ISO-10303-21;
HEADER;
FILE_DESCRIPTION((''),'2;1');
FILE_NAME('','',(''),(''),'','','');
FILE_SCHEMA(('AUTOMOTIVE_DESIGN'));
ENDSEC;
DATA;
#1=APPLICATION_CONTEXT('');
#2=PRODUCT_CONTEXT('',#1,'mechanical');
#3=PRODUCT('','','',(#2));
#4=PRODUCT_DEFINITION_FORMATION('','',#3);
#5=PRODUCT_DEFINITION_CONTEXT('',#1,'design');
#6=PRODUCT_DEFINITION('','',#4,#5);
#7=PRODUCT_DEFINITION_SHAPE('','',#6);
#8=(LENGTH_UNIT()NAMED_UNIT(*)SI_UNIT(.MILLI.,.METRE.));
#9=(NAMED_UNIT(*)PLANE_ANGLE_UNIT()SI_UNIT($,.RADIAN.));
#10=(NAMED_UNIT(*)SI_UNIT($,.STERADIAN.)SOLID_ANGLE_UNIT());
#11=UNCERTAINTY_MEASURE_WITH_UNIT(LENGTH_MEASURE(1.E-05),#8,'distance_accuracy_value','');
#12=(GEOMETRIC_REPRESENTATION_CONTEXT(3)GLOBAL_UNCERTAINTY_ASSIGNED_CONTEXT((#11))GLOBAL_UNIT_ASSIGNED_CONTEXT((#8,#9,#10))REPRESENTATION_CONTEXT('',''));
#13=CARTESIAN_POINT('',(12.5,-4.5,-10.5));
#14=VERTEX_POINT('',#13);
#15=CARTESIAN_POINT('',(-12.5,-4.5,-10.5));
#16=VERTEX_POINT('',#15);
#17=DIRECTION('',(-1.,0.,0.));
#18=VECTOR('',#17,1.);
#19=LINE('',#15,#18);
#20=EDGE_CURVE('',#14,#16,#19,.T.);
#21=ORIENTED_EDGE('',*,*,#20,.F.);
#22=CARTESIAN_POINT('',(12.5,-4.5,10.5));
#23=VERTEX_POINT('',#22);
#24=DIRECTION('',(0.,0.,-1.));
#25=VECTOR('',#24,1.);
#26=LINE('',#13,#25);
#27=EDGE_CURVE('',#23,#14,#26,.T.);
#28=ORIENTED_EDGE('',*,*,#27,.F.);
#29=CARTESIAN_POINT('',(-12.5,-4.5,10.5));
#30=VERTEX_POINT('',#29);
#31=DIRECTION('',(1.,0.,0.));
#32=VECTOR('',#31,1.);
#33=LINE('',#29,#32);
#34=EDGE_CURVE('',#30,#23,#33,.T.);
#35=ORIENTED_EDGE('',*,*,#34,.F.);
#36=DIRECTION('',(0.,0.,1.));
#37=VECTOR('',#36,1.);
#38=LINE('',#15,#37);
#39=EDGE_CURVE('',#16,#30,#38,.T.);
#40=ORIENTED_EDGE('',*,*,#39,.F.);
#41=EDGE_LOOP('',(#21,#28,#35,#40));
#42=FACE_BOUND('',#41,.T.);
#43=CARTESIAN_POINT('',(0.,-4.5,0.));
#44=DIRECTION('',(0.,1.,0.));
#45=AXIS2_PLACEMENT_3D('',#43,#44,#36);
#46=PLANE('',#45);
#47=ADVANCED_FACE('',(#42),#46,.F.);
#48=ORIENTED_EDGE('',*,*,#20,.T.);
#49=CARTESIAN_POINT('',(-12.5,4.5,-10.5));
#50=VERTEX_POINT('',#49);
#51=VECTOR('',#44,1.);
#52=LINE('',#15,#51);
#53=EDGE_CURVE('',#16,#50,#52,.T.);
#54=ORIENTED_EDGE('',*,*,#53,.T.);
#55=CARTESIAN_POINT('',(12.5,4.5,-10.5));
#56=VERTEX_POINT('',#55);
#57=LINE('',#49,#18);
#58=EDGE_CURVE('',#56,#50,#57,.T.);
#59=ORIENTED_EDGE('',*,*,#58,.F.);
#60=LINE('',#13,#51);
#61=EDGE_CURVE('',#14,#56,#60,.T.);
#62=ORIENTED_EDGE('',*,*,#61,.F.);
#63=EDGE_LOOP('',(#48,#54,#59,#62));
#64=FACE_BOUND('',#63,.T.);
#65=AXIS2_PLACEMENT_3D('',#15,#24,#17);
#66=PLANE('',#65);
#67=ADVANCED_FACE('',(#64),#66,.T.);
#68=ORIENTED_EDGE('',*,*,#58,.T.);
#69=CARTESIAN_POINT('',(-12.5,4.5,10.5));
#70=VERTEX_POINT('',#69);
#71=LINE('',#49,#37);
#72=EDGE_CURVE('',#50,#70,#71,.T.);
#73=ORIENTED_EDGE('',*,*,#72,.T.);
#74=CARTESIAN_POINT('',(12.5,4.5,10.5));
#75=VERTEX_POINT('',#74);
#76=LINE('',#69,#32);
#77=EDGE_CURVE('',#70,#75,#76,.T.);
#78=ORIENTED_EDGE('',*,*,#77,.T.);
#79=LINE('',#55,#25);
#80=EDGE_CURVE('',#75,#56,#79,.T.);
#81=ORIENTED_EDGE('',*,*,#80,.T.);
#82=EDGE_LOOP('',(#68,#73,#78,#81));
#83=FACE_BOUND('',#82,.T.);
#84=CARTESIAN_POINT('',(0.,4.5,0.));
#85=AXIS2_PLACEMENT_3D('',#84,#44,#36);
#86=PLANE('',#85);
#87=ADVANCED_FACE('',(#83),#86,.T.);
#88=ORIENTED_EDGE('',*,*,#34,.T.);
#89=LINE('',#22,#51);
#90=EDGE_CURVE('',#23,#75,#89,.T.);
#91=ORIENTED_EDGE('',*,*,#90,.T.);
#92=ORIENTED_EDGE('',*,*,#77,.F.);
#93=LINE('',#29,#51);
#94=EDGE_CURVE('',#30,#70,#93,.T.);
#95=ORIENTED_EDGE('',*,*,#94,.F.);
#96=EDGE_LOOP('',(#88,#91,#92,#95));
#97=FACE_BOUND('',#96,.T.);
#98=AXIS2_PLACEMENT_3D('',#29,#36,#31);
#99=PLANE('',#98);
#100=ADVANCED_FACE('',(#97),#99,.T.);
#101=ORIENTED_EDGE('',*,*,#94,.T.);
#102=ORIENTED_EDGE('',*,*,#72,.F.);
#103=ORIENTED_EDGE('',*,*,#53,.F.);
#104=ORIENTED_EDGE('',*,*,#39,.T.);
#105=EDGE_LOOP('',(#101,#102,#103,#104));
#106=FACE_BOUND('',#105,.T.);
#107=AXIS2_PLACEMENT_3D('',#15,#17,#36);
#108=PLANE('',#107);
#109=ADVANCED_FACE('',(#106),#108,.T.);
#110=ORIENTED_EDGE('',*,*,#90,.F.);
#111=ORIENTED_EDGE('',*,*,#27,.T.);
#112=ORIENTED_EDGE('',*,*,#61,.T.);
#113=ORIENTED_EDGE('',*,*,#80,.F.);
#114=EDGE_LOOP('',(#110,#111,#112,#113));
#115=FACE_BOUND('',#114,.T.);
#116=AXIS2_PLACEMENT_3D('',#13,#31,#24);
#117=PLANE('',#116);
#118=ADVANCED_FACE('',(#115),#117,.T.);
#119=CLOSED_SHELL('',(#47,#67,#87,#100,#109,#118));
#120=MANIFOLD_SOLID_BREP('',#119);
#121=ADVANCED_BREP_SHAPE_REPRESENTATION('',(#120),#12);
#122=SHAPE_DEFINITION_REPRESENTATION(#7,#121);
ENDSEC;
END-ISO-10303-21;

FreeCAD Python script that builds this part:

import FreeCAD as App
import Part
import Sketcher
from FreeCAD import Vector


def add_polygon(sketch, points):
    """Adds a closed chain of lines whose ends are joined by coincident constraints."""
    first, n = sketch.GeometryCount, len(points)
    for a, b in zip(points, points[1:] + points[:1]):
        sketch.addGeometry(Part.LineSegment(App.Vector(*a, 0), App.Vector(*b, 0)), False)
    for i in range(n):
        sketch.addConstraint(Sketcher.Constraint("Coincident", first + i, 2, first + (i + 1) % n, 1))

doc = App.newDocument("Part")
body = doc.addObject("PartDesign::Body", "Body")

# Sketch on XZ plane
sketch1 = body.newObject("Sketcher::SketchObject", "Sketch")
sketch1.AttachmentSupport = (doc.getObject("XZ_Plane"), [""])
sketch1.MapMode = "FlatFace"
add_polygon(sketch1, [(-12, -10), (-12, 10), (12, 10), (12, -10)])  # lines 0-3
sketch1.addConstraint(Sketcher.Constraint("Vertical", 0))
sketch1.addConstraint(Sketcher.Constraint("Horizontal", 1))
sketch1.addConstraint(Sketcher.Constraint("Vertical", 2))
sketch1.addConstraint(Sketcher.Constraint("Horizontal", 3))
sketch1.addConstraint(Sketcher.Constraint("Symmetric", 0, 2, 2, 2, -1, 1))
sketch1.addConstraint(Sketcher.Constraint("DistanceX", 1, 1, 1, 2, 25.0))
sketch1.addConstraint(Sketcher.Constraint("DistanceY", 0, 1, 0, 2, 21.0))
pad1 = body.newObject("PartDesign::Pad", "Pad")
pad1.Profile = sketch1
pad1.Type = "TwoLengths"
pad1.Length = 4.5
pad1.Length2 = 4.5
pad1.Reversed = True

doc.recompute()
